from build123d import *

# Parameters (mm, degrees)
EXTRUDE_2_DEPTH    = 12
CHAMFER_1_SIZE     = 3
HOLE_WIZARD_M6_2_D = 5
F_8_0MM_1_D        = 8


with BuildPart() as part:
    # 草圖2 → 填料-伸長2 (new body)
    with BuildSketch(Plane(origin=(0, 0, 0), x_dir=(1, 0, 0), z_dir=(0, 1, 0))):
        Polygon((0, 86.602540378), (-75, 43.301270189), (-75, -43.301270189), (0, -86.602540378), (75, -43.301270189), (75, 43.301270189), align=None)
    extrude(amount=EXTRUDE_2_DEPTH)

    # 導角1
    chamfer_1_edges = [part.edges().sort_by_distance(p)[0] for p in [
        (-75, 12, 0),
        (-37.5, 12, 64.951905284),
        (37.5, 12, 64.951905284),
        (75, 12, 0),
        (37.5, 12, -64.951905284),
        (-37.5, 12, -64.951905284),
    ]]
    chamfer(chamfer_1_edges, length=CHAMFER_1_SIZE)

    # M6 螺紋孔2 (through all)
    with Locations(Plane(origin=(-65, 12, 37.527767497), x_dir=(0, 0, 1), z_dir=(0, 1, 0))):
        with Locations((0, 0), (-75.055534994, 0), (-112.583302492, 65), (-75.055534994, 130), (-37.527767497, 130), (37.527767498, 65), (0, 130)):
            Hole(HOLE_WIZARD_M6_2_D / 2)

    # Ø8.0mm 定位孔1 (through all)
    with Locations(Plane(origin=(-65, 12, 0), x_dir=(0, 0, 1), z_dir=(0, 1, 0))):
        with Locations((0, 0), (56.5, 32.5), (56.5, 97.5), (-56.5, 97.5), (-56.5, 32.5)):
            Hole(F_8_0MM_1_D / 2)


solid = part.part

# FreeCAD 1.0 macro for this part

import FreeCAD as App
import Part
import Sketcher
from FreeCAD import Vector
Q = App.Units.Quantity


def edges_at(feature, points):
    """Names of the edges that pass closest to the given points."""
    edges = feature.Shape.Edges
    near = lambda p: min(range(len(edges)), key=lambda i: edges[i].distToShape(Part.Vertex(*p))[0])
    return sorted({f"Edge{near(p) + 1}" for p in points})


def add_polygon(sketch, points):
    """Adds a closed chain of lines whose ends are joined by coincident constraints."""
    first, n = sketch.GeometryCount, len(points)
    for a, b in zip(points, points[1:] + points[:1]):
        sketch.addGeometry(Part.LineSegment(App.Vector(*a, 0), App.Vector(*b, 0)), False)
    for i in range(n):
        sketch.addConstraint(Sketcher.Constraint("Coincident", first + i, 2, first + (i + 1) % n, 1))

doc = App.newDocument("Part")
params = doc.addObject("Spreadsheet::Sheet", "Params")
for row, (alias, value) in enumerate([
    ("pad1_length", "12 mm"),
    ("chamfer_size", "3 mm"),
    ("sketch2_diameter", "5 mm"),
    ("hole_diameter", "5 mm"),
    ("sketch3_diameter", "8 mm"),
    ("hole2_diameter", "8 mm"),
], start=1):
    params.set(f"A{row}", alias)
    params.set(f"B{row}", "=" + value)
    params.setAlias(f"B{row}", alias)

body = doc.addObject("PartDesign::Body", "Body")

# Sketch on XZ plane
sketch1 = body.newObject("Sketcher::SketchObject", "Sketch")
sketch1.AttachmentSupport = (doc.getObject("XZ_Plane"), [""])
sketch1.MapMode = "FlatFace"
add_polygon(sketch1, [(0, -87), (-75, -43), (-75, 43), (0, 87), (75, 43), (75, -43)])  # lines 0-5
sketch1.addConstraint([
    Sketcher.Constraint("Vertical", 1),
    Sketcher.Constraint("Vertical", 4),
    Sketcher.Constraint("Symmetric", 0, 2, 3, 2, -1, 1),
    Sketcher.Constraint("Symmetric", 2, 2, 5, 2, -1, 1),
    Sketcher.Constraint("PointOnObject", 2, 2, -2),
    Sketcher.Constraint("Parallel", 2, 5),
    Sketcher.Constraint("Horizontal", 1, 2, 3, 2),
    Sketcher.Constraint("Angle", 0, Q("150 deg")),
    Sketcher.Constraint("DistanceX", 0, 2, -1, 1, 75.0),
    Sketcher.Constraint("DistanceY", 1, 1, 1, 2, 86.60254),
])
pad1 = body.newObject("PartDesign::Pad", "Pad")
pad1.Profile = sketch1
pad1.setExpression("Length", "Params.pad1_length")
pad1.Reversed = True
doc.recompute()

chamfer = body.newObject("PartDesign::Chamfer", "Chamfer")
chamfer.Base = (pad1, edges_at(pad1, [
    (-75, 12, 0),
    (-37.5, 12, 64.952),
    (37.5, 12, 64.952),
    (75, 12, 0),
    (37.5, 12, -64.952),
    (-37.5, 12, -64.952),
]))
chamfer.setExpression("Size", "Params.chamfer_size")

# Sketch on XZ plane
sketch2 = body.newObject("Sketcher::SketchObject", "Sketch001")
sketch2.AttachmentSupport = (doc.getObject("XZ_Plane"), [""])
sketch2.MapMode = "FlatFace"
sketch2.AttachmentOffset = App.Placement(Vector(0, 0, -12), App.Rotation())
sketch2.addGeometry([
    Part.Circle(Vector(-65, 37.5, 0), Vector(0, 0, 1), 2.5),  # 0
    Part.Circle(Vector(-65, -37.5, 0), Vector(0, 0, 1), 2.5),  # 1
    Part.Circle(Vector(0, -75.1, 0), Vector(0, 0, 1), 2.5),  # 2
    Part.Circle(Vector(65, -37.5, 0), Vector(0, 0, 1), 2.5),  # 3
    Part.Circle(Vector(65, 0, 0), Vector(0, 0, 1), 2.5),  # 4
    Part.Circle(Vector(0, 75.1, 0), Vector(0, 0, 1), 2.5),  # 5
    Part.Circle(Vector(65, 37.5, 0), Vector(0, 0, 1), 2.5),  # 6
], False)
sketch2.addConstraint([
    Sketcher.Constraint("Equal", 0, 1),
    Sketcher.Constraint("Equal", 1, 2),
    Sketcher.Constraint("Equal", 2, 3),
    Sketcher.Constraint("Equal", 3, 4),
    Sketcher.Constraint("Equal", 4, 5),
    Sketcher.Constraint("Equal", 5, 6),
    Sketcher.Constraint("Symmetric", 0, 3, 3, 3, -1, 1),
    Sketcher.Constraint("Symmetric", 2, 3, 5, 3, -1, 1),
    Sketcher.Constraint("Symmetric", 1, 3, 6, 3, -1, 1),
    Sketcher.Constraint("Symmetric", 1, 3, 3, 3, -2),
    Sketcher.Constraint("PointOnObject", 2, 3, -2),
    Sketcher.Constraint("PointOnObject", 4, 3, -1),
    Sketcher.Constraint("Vertical", 3, 3, 4, 3),
    Sketcher.Constraint("Diameter", 0, 5.0),
    Sketcher.Constraint("DistanceX", 0, 3, -1, 1, 65.0),
    Sketcher.Constraint("DistanceY", 2, 3, 5, 3, 150.11107),
    Sketcher.Constraint("DistanceY", -1, 1, 0, 3, 37.527767),
])
sketch2.setExpression("Constraints[13]", "Params.sketch2_diameter")
doc.recompute()
hole = body.newObject("PartDesign::Hole", "Hole")
hole.Profile = sketch2
hole.ThreadType = "None"
hole.setExpression("Diameter", "Params.hole_diameter")
hole.DepthType = "ThroughAll"
hole.Reversed = True

# Sketch on XZ plane
sketch3 = body.newObject("Sketcher::SketchObject", "Sketch002")
sketch3.AttachmentSupport = (doc.getObject("XZ_Plane"), [""])
sketch3.MapMode = "FlatFace"
sketch3.AttachmentOffset = App.Placement(Vector(0, 0, -12), App.Rotation())
sketch3.addGeometry([
    Part.Circle(Vector(-65, 0, 0), Vector(0, 0, 1), 4),  # 0
    Part.Circle(Vector(-32.5, 56.5, 0), Vector(0, 0, 1), 4),  # 1
    Part.Circle(Vector(32.5, 56.5, 0), Vector(0, 0, 1), 4),  # 2
    Part.Circle(Vector(32.5, -56.5, 0), Vector(0, 0, 1), 4),  # 3
    Part.Circle(Vector(-32.5, -56.5, 0), Vector(0, 0, 1), 4),  # 4
], False)
sketch3.addConstraint([
    Sketcher.Constraint("Equal", 0, 1),
    Sketcher.Constraint("Equal", 1, 2),
    Sketcher.Constraint("Equal", 2, 3),
    Sketcher.Constraint("Equal", 3, 4),
    Sketcher.Constraint("Symmetric", 1, 3, 3, 3, -1, 1),
    Sketcher.Constraint("Symmetric", 2, 3, 4, 3, -1, 1),
    Sketcher.Constraint("Symmetric", 1, 3, 2, 3, -2),
    Sketcher.Constraint("PointOnObject", 0, 3, -1),
    Sketcher.Constraint("Diameter", 0, 8.0),
    Sketcher.Constraint("DistanceX", 0, 3, -1, 1, 65.0),
    Sketcher.Constraint("DistanceX", 1, 3, 2, 3, 65.0),
    Sketcher.Constraint("DistanceY", 3, 3, 2, 3, 113.0),
])
sketch3.setExpression("Constraints[8]", "Params.sketch3_diameter")
doc.recompute()
hole2 = body.newObject("PartDesign::Hole", "Hole001")
hole2.Profile = sketch3
hole2.ThreadType = "None"
hole2.setExpression("Diameter", "Params.hole2_diameter")
hole2.DepthType = "ThroughAll"
hole2.Reversed = True

doc.recompute()
